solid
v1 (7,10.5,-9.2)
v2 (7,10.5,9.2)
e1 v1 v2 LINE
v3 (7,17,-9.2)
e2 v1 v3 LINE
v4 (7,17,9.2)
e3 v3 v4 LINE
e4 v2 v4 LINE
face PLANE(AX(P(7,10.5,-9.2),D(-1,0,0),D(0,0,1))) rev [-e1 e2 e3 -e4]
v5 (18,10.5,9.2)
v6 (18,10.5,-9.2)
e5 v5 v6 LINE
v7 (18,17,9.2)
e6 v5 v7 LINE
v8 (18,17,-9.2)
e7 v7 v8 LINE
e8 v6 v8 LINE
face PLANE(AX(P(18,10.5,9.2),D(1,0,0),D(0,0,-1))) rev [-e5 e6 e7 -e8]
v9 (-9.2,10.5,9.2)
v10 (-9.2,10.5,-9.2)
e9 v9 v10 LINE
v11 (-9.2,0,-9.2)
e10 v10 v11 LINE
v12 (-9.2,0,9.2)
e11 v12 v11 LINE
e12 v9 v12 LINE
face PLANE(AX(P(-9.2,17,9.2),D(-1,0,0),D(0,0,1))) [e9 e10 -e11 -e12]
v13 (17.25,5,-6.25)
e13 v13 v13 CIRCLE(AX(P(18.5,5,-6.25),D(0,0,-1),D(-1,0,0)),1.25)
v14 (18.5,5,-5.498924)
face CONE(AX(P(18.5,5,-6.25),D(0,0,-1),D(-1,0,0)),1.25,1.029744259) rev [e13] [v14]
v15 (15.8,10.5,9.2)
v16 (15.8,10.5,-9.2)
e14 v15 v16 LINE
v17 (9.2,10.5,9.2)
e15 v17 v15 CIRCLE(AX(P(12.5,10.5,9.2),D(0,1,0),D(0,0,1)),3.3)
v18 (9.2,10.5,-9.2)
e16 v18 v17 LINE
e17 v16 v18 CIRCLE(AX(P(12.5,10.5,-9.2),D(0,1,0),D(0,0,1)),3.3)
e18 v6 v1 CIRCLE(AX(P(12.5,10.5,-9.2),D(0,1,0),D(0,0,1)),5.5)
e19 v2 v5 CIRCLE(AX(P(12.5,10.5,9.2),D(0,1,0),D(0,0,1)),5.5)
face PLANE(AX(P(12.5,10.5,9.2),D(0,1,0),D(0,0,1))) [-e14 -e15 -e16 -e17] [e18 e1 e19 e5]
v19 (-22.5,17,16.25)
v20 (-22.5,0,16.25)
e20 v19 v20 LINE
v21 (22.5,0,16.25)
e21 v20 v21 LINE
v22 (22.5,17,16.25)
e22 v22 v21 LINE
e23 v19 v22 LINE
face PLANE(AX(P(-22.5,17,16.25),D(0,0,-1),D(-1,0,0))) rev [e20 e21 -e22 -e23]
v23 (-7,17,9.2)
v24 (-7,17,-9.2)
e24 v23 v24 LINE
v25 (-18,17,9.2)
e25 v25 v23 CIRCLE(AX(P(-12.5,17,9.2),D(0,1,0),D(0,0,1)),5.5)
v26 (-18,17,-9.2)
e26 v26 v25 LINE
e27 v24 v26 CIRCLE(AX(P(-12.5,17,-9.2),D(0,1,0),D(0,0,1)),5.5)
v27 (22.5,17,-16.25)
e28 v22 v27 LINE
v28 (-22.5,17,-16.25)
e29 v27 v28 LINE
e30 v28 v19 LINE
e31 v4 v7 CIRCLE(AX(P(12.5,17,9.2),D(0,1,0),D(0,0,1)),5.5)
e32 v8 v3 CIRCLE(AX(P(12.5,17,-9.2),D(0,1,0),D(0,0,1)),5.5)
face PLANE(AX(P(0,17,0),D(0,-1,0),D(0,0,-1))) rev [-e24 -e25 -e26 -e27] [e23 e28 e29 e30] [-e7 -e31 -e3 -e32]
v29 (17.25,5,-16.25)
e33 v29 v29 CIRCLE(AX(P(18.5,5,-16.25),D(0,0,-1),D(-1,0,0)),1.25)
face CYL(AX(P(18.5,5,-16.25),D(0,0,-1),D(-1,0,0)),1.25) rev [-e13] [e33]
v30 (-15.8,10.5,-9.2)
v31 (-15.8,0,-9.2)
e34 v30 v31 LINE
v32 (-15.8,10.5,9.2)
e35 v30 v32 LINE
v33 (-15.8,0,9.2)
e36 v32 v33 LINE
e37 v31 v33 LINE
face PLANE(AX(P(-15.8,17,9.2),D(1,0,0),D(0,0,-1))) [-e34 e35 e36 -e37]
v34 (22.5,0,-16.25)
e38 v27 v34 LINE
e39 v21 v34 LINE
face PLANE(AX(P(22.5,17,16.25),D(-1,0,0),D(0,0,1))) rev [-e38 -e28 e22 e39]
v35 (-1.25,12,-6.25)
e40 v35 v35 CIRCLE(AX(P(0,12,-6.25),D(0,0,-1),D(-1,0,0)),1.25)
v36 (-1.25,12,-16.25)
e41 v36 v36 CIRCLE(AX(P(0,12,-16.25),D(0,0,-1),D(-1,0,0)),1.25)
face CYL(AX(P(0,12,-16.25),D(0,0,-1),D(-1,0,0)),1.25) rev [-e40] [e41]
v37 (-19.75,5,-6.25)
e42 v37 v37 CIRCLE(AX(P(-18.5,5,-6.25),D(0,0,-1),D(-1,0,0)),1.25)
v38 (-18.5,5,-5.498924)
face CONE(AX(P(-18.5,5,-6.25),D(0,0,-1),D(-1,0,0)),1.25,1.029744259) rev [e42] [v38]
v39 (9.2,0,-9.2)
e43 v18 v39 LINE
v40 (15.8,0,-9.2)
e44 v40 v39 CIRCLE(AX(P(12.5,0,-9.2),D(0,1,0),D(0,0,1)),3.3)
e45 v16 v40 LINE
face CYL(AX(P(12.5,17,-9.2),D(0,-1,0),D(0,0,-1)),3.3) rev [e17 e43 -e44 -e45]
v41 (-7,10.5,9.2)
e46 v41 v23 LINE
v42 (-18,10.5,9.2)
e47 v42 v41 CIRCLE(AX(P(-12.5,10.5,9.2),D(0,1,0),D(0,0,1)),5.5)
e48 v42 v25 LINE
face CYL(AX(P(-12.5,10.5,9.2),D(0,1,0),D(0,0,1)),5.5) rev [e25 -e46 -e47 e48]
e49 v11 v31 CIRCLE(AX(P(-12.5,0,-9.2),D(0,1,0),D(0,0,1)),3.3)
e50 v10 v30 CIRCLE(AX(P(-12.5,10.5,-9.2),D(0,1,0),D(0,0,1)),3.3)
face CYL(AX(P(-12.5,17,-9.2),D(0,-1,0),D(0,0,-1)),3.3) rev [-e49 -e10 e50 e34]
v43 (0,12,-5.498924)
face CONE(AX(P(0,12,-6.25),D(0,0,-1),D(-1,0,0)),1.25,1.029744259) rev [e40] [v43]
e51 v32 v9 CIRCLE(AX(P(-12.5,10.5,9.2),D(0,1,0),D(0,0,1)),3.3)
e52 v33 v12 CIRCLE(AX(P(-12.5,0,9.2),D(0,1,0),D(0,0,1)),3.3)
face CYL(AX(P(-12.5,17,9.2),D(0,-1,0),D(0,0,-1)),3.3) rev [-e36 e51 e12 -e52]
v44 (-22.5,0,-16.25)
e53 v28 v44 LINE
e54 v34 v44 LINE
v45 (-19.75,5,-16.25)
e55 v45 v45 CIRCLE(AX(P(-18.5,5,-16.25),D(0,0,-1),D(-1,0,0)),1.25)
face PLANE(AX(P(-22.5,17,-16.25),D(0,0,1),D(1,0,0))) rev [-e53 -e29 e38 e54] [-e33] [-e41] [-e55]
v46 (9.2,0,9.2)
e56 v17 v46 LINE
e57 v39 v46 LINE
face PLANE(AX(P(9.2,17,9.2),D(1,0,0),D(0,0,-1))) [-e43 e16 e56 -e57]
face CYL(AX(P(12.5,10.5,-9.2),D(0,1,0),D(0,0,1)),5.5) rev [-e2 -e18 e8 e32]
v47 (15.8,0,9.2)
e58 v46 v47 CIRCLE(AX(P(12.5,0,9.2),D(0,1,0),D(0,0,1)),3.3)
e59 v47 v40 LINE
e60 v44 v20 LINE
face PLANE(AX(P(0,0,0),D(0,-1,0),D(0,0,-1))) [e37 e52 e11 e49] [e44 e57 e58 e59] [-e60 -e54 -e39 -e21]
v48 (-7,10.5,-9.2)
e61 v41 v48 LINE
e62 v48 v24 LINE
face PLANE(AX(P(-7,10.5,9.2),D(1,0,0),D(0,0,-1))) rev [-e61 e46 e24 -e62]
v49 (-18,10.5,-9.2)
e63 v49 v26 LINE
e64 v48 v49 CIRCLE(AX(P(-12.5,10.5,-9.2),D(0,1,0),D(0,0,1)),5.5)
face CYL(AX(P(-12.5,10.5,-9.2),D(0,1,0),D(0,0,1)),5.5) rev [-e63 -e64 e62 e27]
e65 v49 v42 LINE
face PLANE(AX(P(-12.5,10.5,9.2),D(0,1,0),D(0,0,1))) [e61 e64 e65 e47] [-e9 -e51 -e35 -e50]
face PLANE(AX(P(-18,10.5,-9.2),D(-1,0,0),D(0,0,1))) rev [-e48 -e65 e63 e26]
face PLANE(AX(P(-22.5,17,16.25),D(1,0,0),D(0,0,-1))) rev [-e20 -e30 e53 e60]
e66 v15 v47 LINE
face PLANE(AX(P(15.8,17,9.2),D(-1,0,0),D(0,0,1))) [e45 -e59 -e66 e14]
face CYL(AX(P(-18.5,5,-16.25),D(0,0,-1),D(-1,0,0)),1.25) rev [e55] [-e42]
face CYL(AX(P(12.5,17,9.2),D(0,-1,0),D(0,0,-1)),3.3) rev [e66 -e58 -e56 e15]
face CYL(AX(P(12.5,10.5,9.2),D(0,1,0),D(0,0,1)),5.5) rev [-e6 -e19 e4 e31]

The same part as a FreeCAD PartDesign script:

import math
import FreeCAD as App
import Part
import Sketcher
from FreeCAD import Vector
Q = App.Units.Quantity


def add_polygon(sketch, points):
    """Adds a closed chain of lines whose ends are joined by coincident constraints."""
    first, n = sketch.GeometryCount, len(points)
    for a, b in zip(points, points[1:] + points[:1]):
        sketch.addGeometry(Part.LineSegment(App.Vector(*a, 0), App.Vector(*b, 0)), False)
    for i in range(n):
        sketch.addConstraint(Sketcher.Constraint("Coincident", first + i, 2, first + (i + 1) % n, 1))

doc = App.newDocument("Part")
params = doc.addObject("Spreadsheet::Sheet", "Params")
for row, (alias, value) in enumerate([
    ("sketch1_radius", "3.3 mm"),
    ("sketch1_width", "45 mm"),
    ("sketch1_height", "32.5 mm"),
    ("sketch1_height2", "18.4 mm"),
    ("pad1_length", "17 mm"),
    ("sketch2_radius", "5.5 mm"),
    ("sketch2_height", "18.4 mm"),
    ("pocket1_length", "6.5 mm"),
    ("sketch3_diameter", "2.5 mm"),
    ("hole_diameter", "2.5 mm"),
    ("hole_depth", "10 mm"),
], start=1):
    params.set(f"A{row}", alias)
    params.set(f"B{row}", "=" + value)
    params.setAlias(f"B{row}", alias)

body = doc.addObject("PartDesign::Body", "Body")

# Sketch on XZ plane
sketch1 = body.newObject("Sketcher::SketchObject", "Sketch")
sketch1.AttachmentSupport = (doc.getObject("XZ_Plane"), [""])
sketch1.MapMode = "FlatFace"
add_polygon(sketch1, [(-22.5, -16.2), (-22.5, 16.2), (22.5, 16.2), (22.5, -16.2)])  # lines 0-3
sketch1.addGeometry(Part.ArcOfCircle(Part.Circle(Vector(-12.5, 9.2, 0), Vector(0, 0, 1), 3.3), math.radians(0), math.radians(180)), False)  # 4
sketch1.addGeometry(Part.LineSegment(Vector(-15.8, 9.2, 0), Vector(-15.8, -9.2, 0)), False)  # 5
sketch1.addGeometry(Part.ArcOfCircle(Part.Circle(Vector(-12.5, -9.2, 0), Vector(0, 0, 1), 3.3), math.radians(180), math.radians(360)), False)  # 6
sketch1.addGeometry(Part.LineSegment(Vector(-9.2, -9.2, 0), Vector(-9.2, 9.2, 0)), False)  # 7
sketch1.addGeometry(Part.ArcOfCircle(Part.Circle(Vector(12.5, 9.2, 0), Vector(0, 0, 1), 3.3), math.radians(0), math.radians(180)), False)  # 8
sketch1.addGeometry(Part.LineSegment(Vector(9.2, 9.2, 0), Vector(9.2, -9.2, 0)), False)  # 9
sketch1.addGeometry(Part.ArcOfCircle(Part.Circle(Vector(12.5, -9.2, 0), Vector(0, 0, 1), 3.3), math.radians(180), math.radians(360)), False)  # 10
sketch1.addGeometry(Part.LineSegment(Vector(15.8, -9.2, 0), Vector(15.8, 9.2, 0)), False)  # 11
sketch1.addConstraint(Sketcher.Constraint("Tangent", 4, 2, 5, 1))
sketch1.addConstraint(Sketcher.Constraint("Tangent", 5, 2, 6, 1))
sketch1.addConstraint(Sketcher.Constraint("Tangent", 6, 2, 7, 1))
sketch1.addConstraint(Sketcher.Constraint("Tangent", 7, 2, 4, 1))
sketch1.addConstraint(Sketcher.Constraint("Tangent", 8, 2, 9, 1))
sketch1.addConstraint(Sketcher.Constraint("Tangent", 9, 2, 10, 1))
sketch1.addConstraint(Sketcher.Constraint("Tangent", 10, 2, 11, 1))
sketch1.addConstraint(Sketcher.Constraint("Tangent", 11, 2, 8, 1))
sketch1.addConstraint(Sketcher.Constraint("Vertical", 0))
sketch1.addConstraint(Sketcher.Constraint("Horizontal", 1))
sketch1.addConstraint(Sketcher.Constraint("Vertical", 2))
sketch1.addConstraint(Sketcher.Constraint("Horizontal", 3))
sketch1.addConstraint(Sketcher.Constraint("Vertical", 5))
sketch1.addConstraint(Sketcher.Constraint("Vertical", 7))
sketch1.addConstraint(Sketcher.Constraint("Vertical", 9))
sketch1.addConstraint(Sketcher.Constraint("Vertical", 11))
sketch1.addConstraint(Sketcher.Constraint("Equal", 6, 8))
sketch1.addConstraint(Sketcher.Constraint("Symmetric", 6, 3, 8, 3, -1, 1))
sketch1.addConstraint(Sketcher.Constraint("Symmetric", 0, 2, 2, 2, -1, 1))
sketch1.addConstraint(Sketcher.Constraint("Horizontal", 4, 3, 8, 3))
sketch1.addConstraint(Sketcher.Constraint("Horizontal", 6, 3, 10, 3))
sketch1.addConstraint(Sketcher.Constraint("Radius", 4, Q("3.3 mm")))
sketch1.addConstraint(Sketcher.Constraint("DistanceX", 1, 1, 1, 2, Q("45 mm")))
sketch1.addConstraint(Sketcher.Constraint("DistanceY", 0, 1, 0, 2, Q("32.5 mm")))
sketch1.addConstraint(Sketcher.Constraint("DistanceY", 5, 2, 5, 1, Q("18.4 mm")))
sketch1.addConstraint(Sketcher.Constraint("DistanceX", 4, 3, 8, 3, Q("25 mm")))
sketch1.setExpression("Constraints[25]", "Params.sketch1_radius")
sketch1.setExpression("Constraints[26]", "Params.sketch1_width")
sketch1.setExpression("Constraints[27]", "Params.sketch1_height")
sketch1.setExpression("Constraints[28]", "Params.sketch1_height2")
pad1 = body.newObject("PartDesign::Pad", "Pad")
pad1.Profile = sketch1
pad1.setExpression("Length", "Params.pad1_length")
pad1.Reversed = True

# Sketch on XZ plane
sketch2 = body.newObject("Sketcher::SketchObject", "Sketch001")
sketch2.AttachmentSupport = (doc.getObject("XZ_Plane"), [""])
sketch2.MapMode = "FlatFace"
sketch2.AttachmentOffset = App.Placement(Vector(0, 0, -17), App.Rotation())
sketch2.addGeometry(Part.LineSegment(Vector(18, 9, 0), Vector(18, -9, 0)), False)
sketch2.addGeometry(Part.ArcOfCircle(Part.Circle(Vector(12, -9, 0), Vector(0, 0, 1), 6), math.radians(180), math.radians(360)), False)
sketch2.addGeometry(Part.LineSegment(Vector(7, -9, 0), Vector(7, 9, 0)), False)
sketch2.addGeometry(Part.ArcOfCircle(Part.Circle(Vector(12, 9, 0), Vector(0, 0, 1), 6), math.radians(0), math.radians(180)), False)
sketch2.addGeometry(Part.LineSegment(Vector(-7, 9, 0), Vector(-7, -9, 0)), False)
sketch2.addGeometry(Part.ArcOfCircle(Part.Circle(Vector(-12, -9, 0), Vector(0, 0, 1), 6), math.radians(180), math.radians(360)), False)
sketch2.addGeometry(Part.LineSegment(Vector(-18, -9, 0), Vector(-18, 9, 0)), False)
sketch2.addGeometry(Part.ArcOfCircle(Part.Circle(Vector(-12, 9, 0), Vector(0, 0, 1), 6), math.radians(0), math.radians(180)), False)
sketch2.addConstraint(Sketcher.Constraint("Tangent", 0, 2, 1, 2))
sketch2.addConstraint(Sketcher.Constraint("Tangent", 1, 1, 2, 1))
sketch2.addConstraint(Sketcher.Constraint("Tangent", 2, 2, 3, 2))
sketch2.addConstraint(Sketcher.Constraint("Tangent", 3, 1, 0, 1))
sketch2.addConstraint(Sketcher.Constraint("Tangent", 4, 2, 5, 2))
sketch2.addConstraint(Sketcher.Constraint("Tangent", 5, 1, 6, 1))
sketch2.addConstraint(Sketcher.Constraint("Tangent", 6, 2, 7, 2))
sketch2.addConstraint(Sketcher.Constraint("Tangent", 7, 1, 4, 1))
sketch2.addConstraint(Sketcher.Constraint("Vertical", 0))
sketch2.addConstraint(Sketcher.Constraint("Vertical", 2))
sketch2.addConstraint(Sketcher.Constraint("Vertical", 4))
sketch2.addConstraint(Sketcher.Constraint("Vertical", 6))
sketch2.addConstraint(Sketcher.Constraint("Equal", 3, 5))
sketch2.addConstraint(Sketcher.Constraint("Symmetric", 3, 3, 5, 3, -1, 1))
sketch2.addConstraint(Sketcher.Constraint("Horizontal", 1, 3, 5, 3))
sketch2.addConstraint(Sketcher.Constraint("Horizontal", 3, 3, 7, 3))
sketch2.addConstraint(Sketcher.Constraint("Radius", 1, Q("5.5 mm")))
sketch2.addConstraint(Sketcher.Constraint("DistanceY", 0, 2, 0, 1, Q("18.4 mm")))
sketch2.addConstraint(Sketcher.Constraint("DistanceX", -1, 1, 0, 2, Q("18 mm")))
sketch2.setExpression("Constraints[16]", "Params.sketch2_radius")
sketch2.setExpression("Constraints[17]", "Params.sketch2_height")
pocket1 = body.newObject("PartDesign::Pocket", "Pocket")
pocket1.Profile = sketch2
pocket1.setExpression("Length", "Params.pocket1_length")
pocket1.Reversed = True

# Sketch on XY plane
sketch3 = body.newObject("Sketcher::SketchObject", "Sketch002")
sketch3.AttachmentSupport = (doc.getObject("XY_Plane"), [""])
sketch3.MapMode = "FlatFace"
sketch3.AttachmentOffset = App.Placement(Vector(0, 0, -16.25), App.Rotation())
sketch3.addGeometry(Part.Circle(Vector(18.5, 5, 0), Vector(0, 0, 1), 1.2), False)
sketch3.addGeometry(Part.Circle(Vector(0, 12, 0), Vector(0, 0, 1), 1.2), False)
sketch3.addGeometry(Part.Circle(Vector(-18.5, 5, 0), Vector(0, 0, 1), 1.2), False)
sketch3.addConstraint(Sketcher.Constraint("Equal", 0, 1))
sketch3.addConstraint(Sketcher.Constraint("Equal", 1, 2))
sketch3.addConstraint(Sketcher.Constraint("Symmetric", 0, 3, 2, 3, -2))
sketch3.addConstraint(Sketcher.Constraint("PointOnObject", 1, 3, -2))
sketch3.addConstraint(Sketcher.Constraint("Diameter", 0, Q("2.5 mm")))
sketch3.addConstraint(Sketcher.Constraint("DistanceY", -1, 1, 0, 3, Q("5 mm")))
sketch3.addConstraint(Sketcher.Constraint("DistanceY", -1, 1, 1, 3, Q("12 mm")))
sketch3.addConstraint(Sketcher.Constraint("DistanceX", 2, 3, 0, 3, Q("37 mm")))
sketch3.setExpression("Constraints[4]", "Params.sketch3_diameter")
doc.recompute()
hole = body.newObject("PartDesign::Hole", "Hole")
hole.Profile = sketch3
hole.ThreadType = "None"
hole.setExpression("Diameter", "Params.hole_diameter")
hole.DepthType = "Dimension"
hole.setExpression("Depth", "Params.hole_depth")
hole.DrillPoint = "Angled"
hole.DrillPointAngle = 118
hole.Reversed = True

doc.recompute()
